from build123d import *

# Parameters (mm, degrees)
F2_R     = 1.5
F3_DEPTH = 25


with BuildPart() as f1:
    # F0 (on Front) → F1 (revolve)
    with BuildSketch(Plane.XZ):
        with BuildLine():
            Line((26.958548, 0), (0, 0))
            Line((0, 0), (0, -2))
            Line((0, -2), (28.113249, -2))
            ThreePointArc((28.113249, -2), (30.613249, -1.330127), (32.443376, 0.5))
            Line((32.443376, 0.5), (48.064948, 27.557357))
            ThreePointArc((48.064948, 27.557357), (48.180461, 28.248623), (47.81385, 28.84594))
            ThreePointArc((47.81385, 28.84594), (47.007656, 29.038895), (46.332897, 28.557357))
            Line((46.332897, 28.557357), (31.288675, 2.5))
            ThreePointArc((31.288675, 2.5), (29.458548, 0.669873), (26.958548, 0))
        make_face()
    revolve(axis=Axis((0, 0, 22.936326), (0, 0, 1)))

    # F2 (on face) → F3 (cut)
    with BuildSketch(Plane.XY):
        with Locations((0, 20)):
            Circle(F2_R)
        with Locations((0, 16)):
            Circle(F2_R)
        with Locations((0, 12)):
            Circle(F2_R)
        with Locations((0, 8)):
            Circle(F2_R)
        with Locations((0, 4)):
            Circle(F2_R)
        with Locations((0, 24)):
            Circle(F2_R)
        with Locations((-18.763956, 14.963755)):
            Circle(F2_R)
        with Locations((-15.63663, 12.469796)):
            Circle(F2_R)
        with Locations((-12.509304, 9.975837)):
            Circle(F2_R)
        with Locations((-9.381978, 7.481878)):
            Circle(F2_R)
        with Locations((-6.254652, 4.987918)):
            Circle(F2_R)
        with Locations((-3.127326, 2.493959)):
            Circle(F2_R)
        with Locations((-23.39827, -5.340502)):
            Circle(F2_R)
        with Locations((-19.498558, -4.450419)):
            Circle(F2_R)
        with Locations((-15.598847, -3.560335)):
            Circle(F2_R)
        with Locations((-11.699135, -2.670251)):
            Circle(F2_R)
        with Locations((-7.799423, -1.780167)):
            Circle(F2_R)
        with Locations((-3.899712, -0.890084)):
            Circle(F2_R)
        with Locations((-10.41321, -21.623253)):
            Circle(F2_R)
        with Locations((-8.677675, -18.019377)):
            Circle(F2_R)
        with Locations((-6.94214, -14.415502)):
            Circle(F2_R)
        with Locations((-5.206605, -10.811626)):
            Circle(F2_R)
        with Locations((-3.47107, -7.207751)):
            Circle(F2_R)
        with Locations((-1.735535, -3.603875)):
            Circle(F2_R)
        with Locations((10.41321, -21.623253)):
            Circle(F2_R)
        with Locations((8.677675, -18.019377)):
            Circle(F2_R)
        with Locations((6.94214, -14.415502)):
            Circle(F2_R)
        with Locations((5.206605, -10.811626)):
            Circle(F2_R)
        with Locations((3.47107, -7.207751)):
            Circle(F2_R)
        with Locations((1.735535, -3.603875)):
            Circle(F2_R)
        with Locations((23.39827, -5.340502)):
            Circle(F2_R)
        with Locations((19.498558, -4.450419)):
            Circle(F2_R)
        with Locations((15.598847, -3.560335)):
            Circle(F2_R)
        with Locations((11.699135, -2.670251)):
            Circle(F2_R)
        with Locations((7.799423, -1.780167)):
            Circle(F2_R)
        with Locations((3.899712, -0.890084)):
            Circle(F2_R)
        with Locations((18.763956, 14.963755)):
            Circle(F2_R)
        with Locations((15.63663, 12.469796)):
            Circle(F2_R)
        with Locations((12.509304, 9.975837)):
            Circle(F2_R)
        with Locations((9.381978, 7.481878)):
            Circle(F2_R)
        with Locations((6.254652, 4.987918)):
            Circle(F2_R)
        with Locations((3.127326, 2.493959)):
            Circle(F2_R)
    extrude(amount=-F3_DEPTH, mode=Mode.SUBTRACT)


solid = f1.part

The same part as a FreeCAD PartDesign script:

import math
import FreeCAD as App
import Part
import Sketcher
from FreeCAD import Vector
Q = App.Units.Quantity

doc = App.newDocument("Part")
body = doc.addObject("PartDesign::Body", "Body")

sketch1 = body.newObject("Sketcher::SketchObject", "Sketch")
sketch1.AttachmentSupport = (doc.getObject("XZ_Plane"), [""])
sketch1.MapMode = "FlatFace"
sketch1.addGeometry(Part.LineSegment(Vector(27, 0, 0), Vector(0, 0, 0)), False)
sketch1.addGeometry(Part.LineSegment(Vector(0, 0, 0), Vector(0, -2, 0)), False)
sketch1.addGeometry(Part.LineSegment(Vector(0, -2, 0), Vector(28.1, -2, 0)), False)
sketch1.addGeometry(Part.ArcOfCircle(Part.Circle(Vector(28.1, 3, 0), Vector(0, 0, 1), 5), math.radians(-90), math.radians(-30)), False)
sketch1.addGeometry(Part.LineSegment(Vector(32.4, 0.5, 0), Vector(48.1, 27.6, 0)), False)
sketch1.addGeometry(Part.ArcOfCircle(Part.Circle(Vector(47.2, 28.1, 0), Vector(0, 0, 1), 1), math.radians(-30), math.radians(52)), False)
sketch1.addGeometry(Part.ArcOfCircle(Part.Circle(Vector(47.2, 28.1, 0), Vector(0, 0, 1), 1), math.radians(52), math.radians(150)), False)
sketch1.addGeometry(Part.LineSegment(Vector(46.3, 28.6, 0), Vector(31.3, 2.5, 0)), False)
sketch1.addGeometry(Part.ArcOfCircle(Part.Circle(Vector(27, 5, 0), Vector(0, 0, 1), 5), math.radians(-90), math.radians(-30)), False)
sketch1.addConstraint(Sketcher.Constraint("Coincident", 0, 2, 1, 1))
sketch1.addConstraint(Sketcher.Constraint("Coincident", 1, 2, 2, 1))
sketch1.addConstraint(Sketcher.Constraint("Tangent", 2, 2, 3, 1))
sketch1.addConstraint(Sketcher.Constraint("Tangent", 3, 2, 4, 1))
sketch1.addConstraint(Sketcher.Constraint("Tangent", 4, 2, 5, 1))
sketch1.addConstraint(Sketcher.Constraint("Coincident", 5, 2, 6, 1))
sketch1.addConstraint(Sketcher.Constraint("Tangent", 6, 2, 7, 1))
sketch1.addConstraint(Sketcher.Constraint("Tangent", 7, 2, 8, 2))
sketch1.addConstraint(Sketcher.Constraint("Tangent", 8, 1, 0, 1))
sketch1.addConstraint(Sketcher.Constraint("Horizontal", 0))
sketch1.addConstraint(Sketcher.Constraint("Vertical", 1))
sketch1.addConstraint(Sketcher.Constraint("Horizontal", 2))
sketch1.addConstraint(Sketcher.Constraint("Coincident", 0, 2, -1, 1))
sketch1.addConstraint(Sketcher.Constraint("Coincident", 6, 3, 5, 3))
sketch1.addConstraint(Sketcher.Constraint("Equal", 3, 8))
sketch1.addConstraint(Sketcher.Constraint("Parallel", 4, 7))
sketch1.addConstraint(Sketcher.Constraint("Radius", 3, 5.0))
sketch1.addConstraint(Sketcher.Constraint("Radius", 5, 0.999998))
sketch1.addConstraint(Sketcher.Constraint("DistanceY", 1, 2, 1, 1, 2.0))
sketch1.addConstraint(Sketcher.Constraint("Angle", 4, Q("60.000001 deg")))
sketch1.addConstraint(Sketcher.Constraint("DistanceX", 0, 2, 0, 1, 26.958548))
sketch1.addConstraint(Sketcher.Constraint("DistanceX", 8, 3, 4, 2, 21.1064))
sketch1.addConstraint(Sketcher.Constraint("DistanceX", -1, 1, 5, 2, 47.81385))
revolution = body.newObject("PartDesign::Revolution", "Revolution")
revolution.Profile = sketch1
revolution.ReferenceAxis = (sketch1, ["V_Axis"])
revolution.Angle = 360

sketch2 = body.newObject("Sketcher::SketchObject", "Sketch001")
sketch2.AttachmentSupport = (doc.getObject("XY_Plane"), [""])
sketch2.MapMode = "FlatFace"
sketch2.addGeometry(Part.Circle(Vector(0, 20, 0), Vector(0, 0, 1), 1.5), False)
sketch2.addGeometry(Part.Circle(Vector(0, 16, 0), Vector(0, 0, 1), 1.5), False)
sketch2.addGeometry(Part.Circle(Vector(0, 12, 0), Vector(0, 0, 1), 1.5), False)
sketch2.addGeometry(Part.Circle(Vector(0, 8, 0), Vector(0, 0, 1), 1.5), False)
sketch2.addGeometry(Part.Circle(Vector(0, 4, 0), Vector(0, 0, 1), 1.5), False)
sketch2.addGeometry(Part.Circle(Vector(0, 24, 0), Vector(0, 0, 1), 1.5), False)
sketch2.addGeometry(Part.Circle(Vector(-18.8, 15, 0), Vector(0, 0, 1), 1.5), False)
sketch2.addGeometry(Part.Circle(Vector(-15.6, 12.5, 0), Vector(0, 0, 1), 1.5), False)
sketch2.addGeometry(Part.Circle(Vector(-12.5, 10, 0), Vector(0, 0, 1), 1.5), False)
sketch2.addGeometry(Part.Circle(Vector(-9.4, 7.5, 0), Vector(0, 0, 1), 1.5), False)
sketch2.addGeometry(Part.Circle(Vector(-6.3, 5, 0), Vector(0, 0, 1), 1.5), False)
sketch2.addGeometry(Part.Circle(Vector(-3.1, 2.5, 0), Vector(0, 0, 1), 1.5), False)
sketch2.addGeometry(Part.Circle(Vector(-23.4, -5.3, 0), Vector(0, 0, 1), 1.5), False)
sketch2.addGeometry(Part.Circle(Vector(-19.5, -4.5, 0), Vector(0, 0, 1), 1.5), False)
sketch2.addGeometry(Part.Circle(Vector(-15.6, -3.6, 0), Vector(0, 0, 1), 1.5), False)
sketch2.addGeometry(Part.Circle(Vector(-11.7, -2.7, 0), Vector(0, 0, 1), 1.5), False)
sketch2.addGeometry(Part.Circle(Vector(-7.8, -1.8, 0), Vector(0, 0, 1), 1.5), False)
sketch2.addGeometry(Part.Circle(Vector(-3.9, -0.9, 0), Vector(0, 0, 1), 1.5), False)
sketch2.addGeometry(Part.Circle(Vector(-10.4, -21.6, 0), Vector(0, 0, 1), 1.5), False)
sketch2.addGeometry(Part.Circle(Vector(-8.7, -18, 0), Vector(0, 0, 1), 1.5), False)
sketch2.addGeometry(Part.Circle(Vector(-6.9, -14.4, 0), Vector(0, 0, 1), 1.5), False)
sketch2.addGeometry(Part.Circle(Vector(-5.2, -10.8, 0), Vector(0, 0, 1), 1.5), False)
sketch2.addGeometry(Part.Circle(Vector(-3.5, -7.2, 0), Vector(0, 0, 1), 1.5), False)
sketch2.addGeometry(Part.Circle(Vector(-1.7, -3.6, 0), Vector(0, 0, 1), 1.5), False)
sketch2.addGeometry(Part.Circle(Vector(10.4, -21.6, 0), Vector(0, 0, 1), 1.5), False)
sketch2.addGeometry(Part.Circle(Vector(8.7, -18, 0), Vector(0, 0, 1), 1.5), False)
sketch2.addGeometry(Part.Circle(Vector(6.9, -14.4, 0), Vector(0, 0, 1), 1.5), False)
sketch2.addGeometry(Part.Circle(Vector(5.2, -10.8, 0), Vector(0, 0, 1), 1.5), False)
sketch2.addGeometry(Part.Circle(Vector(3.5, -7.2, 0), Vector(0, 0, 1), 1.5), False)
sketch2.addGeometry(Part.Circle(Vector(1.7, -3.6, 0), Vector(0, 0, 1), 1.5), False)
sketch2.addGeometry(Part.Circle(Vector(23.4, -5.3, 0), Vector(0, 0, 1), 1.5), False)
sketch2.addGeometry(Part.Circle(Vector(19.5, -4.5, 0), Vector(0, 0, 1), 1.5), False)
sketch2.addGeometry(Part.Circle(Vector(15.6, -3.6, 0), Vector(0, 0, 1), 1.5), False)
sketch2.addGeometry(Part.Circle(Vector(11.7, -2.7, 0), Vector(0, 0, 1), 1.5), False)
sketch2.addGeometry(Part.Circle(Vector(7.8, -1.8, 0), Vector(0, 0, 1), 1.5), False)
sketch2.addGeometry(Part.Circle(Vector(3.9, -0.9, 0), Vector(0, 0, 1), 1.5), False)
sketch2.addGeometry(Part.Circle(Vector(18.8, 15, 0), Vector(0, 0, 1), 1.5), False)
sketch2.addGeometry(Part.Circle(Vector(15.6, 12.5, 0), Vector(0, 0, 1), 1.5), False)
sketch2.addGeometry(Part.Circle(Vector(12.5, 10, 0), Vector(0, 0, 1), 1.5), False)
sketch2.addGeometry(Part.Circle(Vector(9.4, 7.5, 0), Vector(0, 0, 1), 1.5), False)
sketch2.addGeometry(Part.Circle(Vector(6.3, 5, 0), Vector(0, 0, 1), 1.5), False)
sketch2.addGeometry(Part.Circle(Vector(3.1, 2.5, 0), Vector(0, 0, 1), 1.5), False)
sketch2.addConstraint(Sketcher.Constraint("Equal", 0, 1))
sketch2.addConstraint(Sketcher.Constraint("Equal", 1, 2))
sketch2.addConstraint(Sketcher.Constraint("Equal", 2, 3))
sketch2.addConstraint(Sketcher.Constraint("Equal", 3, 4))
sketch2.addConstraint(Sketcher.Constraint("Equal", 4, 5))
sketch2.addConstraint(Sketcher.Constraint("Equal", 5, 6))
sketch2.addConstraint(Sketcher.Constraint("Equal", 6, 7))
sketch2.addConstraint(Sketcher.Constraint("Equal", 7, 8))
sketch2.addConstraint(Sketcher.Constraint("Equal", 8, 9))
sketch2.addConstraint(Sketcher.Constraint("Equal", 9, 10))
sketch2.addConstraint(Sketcher.Constraint("Equal", 10, 11))
sketch2.addConstraint(Sketcher.Constraint("Equal", 11, 12))
sketch2.addConstraint(Sketcher.Constraint("Equal", 12, 13))
sketch2.addConstraint(Sketcher.Constraint("Equal", 13, 14))
sketch2.addConstraint(Sketcher.Constraint("Equal", 14, 15))
sketch2.addConstraint(Sketcher.Constraint("Equal", 15, 16))
sketch2.addConstraint(Sketcher.Constraint("Equal", 16, 17))
sketch2.addConstraint(Sketcher.Constraint("Equal", 17, 18))
sketch2.addConstraint(Sketcher.Constraint("Equal", 18, 19))
sketch2.addConstraint(Sketcher.Constraint("Equal", 19, 20))
sketch2.addConstraint(Sketcher.Constraint("Equal", 20, 21))
sketch2.addConstraint(Sketcher.Constraint("Equal", 21, 22))
sketch2.addConstraint(Sketcher.Constraint("Equal", 22, 23))
sketch2.addConstraint(Sketcher.Constraint("Equal", 23, 24))
sketch2.addConstraint(Sketcher.Constraint("Equal", 24, 25))
sketch2.addConstraint(Sketcher.Constraint("Equal", 25, 26))
sketch2.addConstraint(Sketcher.Constraint("Equal", 26, 27))
sketch2.addConstraint(Sketcher.Constraint("Equal", 27, 28))
sketch2.addConstraint(Sketcher.Constraint("Equal", 28, 29))
sketch2.addConstraint(Sketcher.Constraint("Equal", 29, 30))
sketch2.addConstraint(Sketcher.Constraint("Equal", 30, 31))
sketch2.addConstraint(Sketcher.Constraint("Equal", 31, 32))
sketch2.addConstraint(Sketcher.Constraint("Equal", 32, 33))
sketch2.addConstraint(Sketcher.Constraint("Equal", 33, 34))
sketch2.addConstraint(Sketcher.Constraint("Equal", 34, 35))
sketch2.addConstraint(Sketcher.Constraint("Equal", 35, 36))
sketch2.addConstraint(Sketcher.Constraint("Equal", 36, 37))
sketch2.addConstraint(Sketcher.Constraint("Equal", 37, 38))
sketch2.addConstraint(Sketcher.Constraint("Equal", 38, 39))
sketch2.addConstraint(Sketcher.Constraint("Equal", 39, 40))
sketch2.addConstraint(Sketcher.Constraint("Equal", 40, 41))
sketch2.addConstraint(Sketcher.Constraint("Symmetric", 18, 3, 24, 3, -2))
sketch2.addConstraint(Sketcher.Constraint("Symmetric", 19, 3, 25, 3, -2))
sketch2.addConstraint(Sketcher.Constraint("Symmetric", 20, 3, 26, 3, -2))
sketch2.addConstraint(Sketcher.Constraint("Symmetric", 21, 3, 27, 3, -2))
sketch2.addConstraint(Sketcher.Constraint("Symmetric", 22, 3, 28, 3, -2))
sketch2.addConstraint(Sketcher.Constraint("Symmetric", 23, 3, 29, 3, -2))
sketch2.addConstraint(Sketcher.Constraint("Symmetric", 12, 3, 30, 3, -2))
sketch2.addConstraint(Sketcher.Constraint("Symmetric", 13, 3, 31, 3, -2))
sketch2.addConstraint(Sketcher.Constraint("Symmetric", 14, 3, 32, 3, -2))
sketch2.addConstraint(Sketcher.Constraint("Symmetric", 15, 3, 33, 3, -2))
sketch2.addConstraint(Sketcher.Constraint("Symmetric", 16, 3, 34, 3, -2))
sketch2.addConstraint(Sketcher.Constraint("Symmetric", 17, 3, 35, 3, -2))
sketch2.addConstraint(Sketcher.Constraint("Symmetric", 6, 3, 36, 3, -2))
sketch2.addConstraint(Sketcher.Constraint("Symmetric", 7, 3, 37, 3, -2))
sketch2.addConstraint(Sketcher.Constraint("Symmetric", 8, 3, 38, 3, -2))
sketch2.addConstraint(Sketcher.Constraint("Symmetric", 9, 3, 39, 3, -2))
sketch2.addConstraint(Sketcher.Constraint("Symmetric", 10, 3, 40, 3, -2))
sketch2.addConstraint(Sketcher.Constraint("Symmetric", 11, 3, 41, 3, -2))
sketch2.addConstraint(Sketcher.Constraint("PointOnObject", 0, 3, -2))
sketch2.addConstraint(Sketcher.Constraint("PointOnObject", 1, 3, -2))
sketch2.addConstraint(Sketcher.Constraint("PointOnObject", 2, 3, -2))
sketch2.addConstraint(Sketcher.Constraint("PointOnObject", 3, 3, -2))
sketch2.addConstraint(Sketcher.Constraint("PointOnObject", 4, 3, -2))
sketch2.addConstraint(Sketcher.Constraint("PointOnObject", 5, 3, -2))
sketch2.addConstraint(Sketcher.Constraint("Diameter", 0, 3.0))
sketch2.addConstraint(Sketcher.Constraint("DistanceY", -1, 1, 0, 3, 20.0))
sketch2.addConstraint(Sketcher.Constraint("DistanceY", -1, 1, 1, 3, 16.0))
sketch2.addConstraint(Sketcher.Constraint("DistanceY", -1, 1, 2, 3, 12.0))
sketch2.addConstraint(Sketcher.Constraint("DistanceY", -1, 1, 3, 3, 8.0))
sketch2.addConstraint(Sketcher.Constraint("DistanceY", -1, 1, 4, 3, 4.0))
sketch2.addConstraint(Sketcher.Constraint("DistanceY", -1, 1, 5, 3, 24.0))
sketch2.addConstraint(Sketcher.Constraint("DistanceY", 17, 3, 10, 3, 5.878002))
sketch2.addConstraint(Sketcher.Constraint("DistanceY", 18, 3, 15, 3, 18.953002))
sketch2.addConstraint(Sketcher.Constraint("DistanceY", 26, 3, 30, 3, 9.075))
sketch2.addConstraint(Sketcher.Constraint("DistanceY", 22, 3, 15, 3, 4.5375))
sketch2.addConstraint(Sketcher.Constraint("DistanceX", 28, 3, 30, 3, 19.9272))
sketch2.addConstraint(Sketcher.Constraint("DistanceX", 29, 3, 33, 3, 9.9636))
sketch2.addConstraint(Sketcher.Constraint("DistanceX", 36, 3, 31, 3, 0.734602))
sketch2.addConstraint(Sketcher.Constraint("DistanceX", 7, 3, -1, 1, 15.63663))
sketch2.addConstraint(Sketcher.Constraint("DistanceY", -1, 1, 11, 3, 2.493959))
sketch2.addConstraint(Sketcher.Constraint("DistanceX", 12, 3, -1, 1, 23.39827))
sketch2.addConstraint(Sketcher.Constraint("DistanceY", 13, 3, -1, 1, 4.450419))
sketch2.addConstraint(Sketcher.Constraint("DistanceY", 15, 3, -1, 1, 2.670251))
sketch2.addConstraint(Sketcher.Constraint("DistanceX", 18, 3, -1, 1, 10.41321))
sketch2.addConstraint(Sketcher.Constraint("DistanceX", 20, 3, -1, 1, 6.94214))
sketch2.addConstraint(Sketcher.Constraint("DistanceY", 7, 3, 6, 3, 2.493959))
sketch2.addConstraint(Sketcher.Constraint("DistanceY", 8, 3, 7, 3, 2.493959))
sketch2.addConstraint(Sketcher.Constraint("DistanceY", 9, 3, 8, 3, 2.493959))
sketch2.addConstraint(Sketcher.Constraint("DistanceY", 9, 3, 3, 3, 0.518122))
sketch2.addConstraint(Sketcher.Constraint("DistanceY", 10, 3, 9, 3, 2.49396))
sketch2.addConstraint(Sketcher.Constraint("DistanceY", 12, 3, 8, 3, 15.316339))
sketch2.addConstraint(Sketcher.Constraint("DistanceX", 12, 3, 10, 3, 17.143618))
sketch2.addConstraint(Sketcher.Constraint("DistanceX", 13, 3, 9, 3, 10.11658))
sketch2.addConstraint(Sketcher.Constraint("DistanceX", 13, 3, 14, 3, 3.899711))
sketch2.addConstraint(Sketcher.Constraint("DistanceX", 14, 3, 11, 3, 12.471521))
sketch2.addConstraint(Sketcher.Constraint("DistanceX", 14, 3, 15, 3, 3.899712))
sketch2.addConstraint(Sketcher.Constraint("DistanceX", 16, 3, 10, 3, 1.544771))
sketch2.addConstraint(Sketcher.Constraint("DistanceX", 16, 3, 17, 3, 3.899711))
sketch2.addConstraint(Sketcher.Constraint("DistanceY", 18, 3, 14, 3, 18.062918))
sketch2.addConstraint(Sketcher.Constraint("DistanceX", 15, 3, 19, 3, 3.02146))
sketch2.addConstraint(Sketcher.Constraint("DistanceY", 19, 3, 14, 3, 14.459042))
sketch2.addConstraint(Sketcher.Constraint("DistanceY", 19, 3, 16, 3, 16.23921))
sketch2.addConstraint(Sketcher.Constraint("DistanceX", 19, 3, 21, 3, 3.47107))
sketch2.addConstraint(Sketcher.Constraint("DistanceY", 19, 3, 21, 3, 7.207751))
sketch2.addConstraint(Sketcher.Constraint("DistanceX", 16, 3, 21, 3, 2.592818))
sketch2.addConstraint(Sketcher.Constraint("DistanceY", 23, 3, 17, 3, 2.713791))
sketch2.addConstraint(Sketcher.Constraint("DistanceX", 34, 3, 38, 3, 4.709881))
pocket1 = body.newObject("PartDesign::Pocket", "Pocket")
pocket1.Profile = sketch2
pocket1.Length = 25

doc.recompute()
